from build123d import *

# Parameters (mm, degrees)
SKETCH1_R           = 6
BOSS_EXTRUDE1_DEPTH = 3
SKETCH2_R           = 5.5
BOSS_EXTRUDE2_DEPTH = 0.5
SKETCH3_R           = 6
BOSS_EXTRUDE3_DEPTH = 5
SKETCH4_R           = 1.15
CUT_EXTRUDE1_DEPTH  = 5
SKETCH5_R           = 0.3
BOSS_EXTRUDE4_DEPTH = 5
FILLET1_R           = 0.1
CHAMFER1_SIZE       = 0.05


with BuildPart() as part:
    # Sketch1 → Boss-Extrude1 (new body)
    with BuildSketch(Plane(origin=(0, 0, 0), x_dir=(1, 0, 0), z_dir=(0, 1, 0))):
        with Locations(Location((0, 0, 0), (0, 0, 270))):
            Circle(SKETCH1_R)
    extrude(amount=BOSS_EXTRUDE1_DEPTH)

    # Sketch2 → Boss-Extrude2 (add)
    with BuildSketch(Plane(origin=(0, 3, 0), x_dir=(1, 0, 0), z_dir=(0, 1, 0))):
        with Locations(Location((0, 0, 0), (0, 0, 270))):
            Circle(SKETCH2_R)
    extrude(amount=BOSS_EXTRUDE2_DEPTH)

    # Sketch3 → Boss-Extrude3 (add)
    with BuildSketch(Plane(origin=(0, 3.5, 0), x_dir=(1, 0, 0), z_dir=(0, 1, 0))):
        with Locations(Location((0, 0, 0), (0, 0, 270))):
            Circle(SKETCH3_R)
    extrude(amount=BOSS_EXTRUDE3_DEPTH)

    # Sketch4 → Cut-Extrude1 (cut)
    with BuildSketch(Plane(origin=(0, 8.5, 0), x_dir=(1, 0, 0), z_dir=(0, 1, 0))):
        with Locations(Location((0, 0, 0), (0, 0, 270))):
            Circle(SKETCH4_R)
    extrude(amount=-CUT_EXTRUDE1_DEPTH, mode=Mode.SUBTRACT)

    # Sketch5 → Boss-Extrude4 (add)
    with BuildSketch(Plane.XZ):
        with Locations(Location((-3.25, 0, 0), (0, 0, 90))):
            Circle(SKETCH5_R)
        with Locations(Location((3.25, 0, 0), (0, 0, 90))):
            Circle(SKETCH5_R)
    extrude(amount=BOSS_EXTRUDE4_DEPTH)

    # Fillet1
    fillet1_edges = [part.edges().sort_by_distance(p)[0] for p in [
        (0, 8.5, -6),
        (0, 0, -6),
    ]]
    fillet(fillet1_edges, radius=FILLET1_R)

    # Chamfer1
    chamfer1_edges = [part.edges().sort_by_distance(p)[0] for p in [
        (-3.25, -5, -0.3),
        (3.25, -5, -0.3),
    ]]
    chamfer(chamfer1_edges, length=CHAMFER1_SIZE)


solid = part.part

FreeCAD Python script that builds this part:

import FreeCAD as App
import Part
import Sketcher
from FreeCAD import Vector
Q = App.Units.Quantity


def edges_at(feature, points):
    """Names of the edges that pass closest to the given points."""
    edges = feature.Shape.Edges
    near = lambda p: min(range(len(edges)), key=lambda i: edges[i].distToShape(Part.Vertex(*p))[0])
    return sorted({f"Edge{near(p) + 1}" for p in points})

doc = App.newDocument("Part")
body = doc.addObject("PartDesign::Body", "Body")

sketch1 = body.newObject("Sketcher::SketchObject", "Sketch")
sketch1.AttachmentSupport = (doc.getObject("XZ_Plane"), [""])
sketch1.MapMode = "FlatFace"
sketch1.addGeometry(Part.Circle(Vector(0, 0, 0), Vector(0, 0, 1), 6), False)
sketch1.addConstraint([
    Sketcher.Constraint("Coincident", 0, 3, -1, 1),
    Sketcher.Constraint("Diameter", 0, Q("12 mm")),
])
pad1 = body.newObject("PartDesign::Pad", "Pad")
pad1.Profile = sketch1
pad1.Length = 3
pad1.Reversed = True

sketch2 = body.newObject("Sketcher::SketchObject", "Sketch001")
sketch2.AttachmentSupport = (doc.getObject("XZ_Plane"), [""])
sketch2.MapMode = "FlatFace"
sketch2.AttachmentOffset = App.Placement(Vector(0, 0, -3), App.Rotation())
sketch2.addGeometry(Part.Circle(Vector(0, 0, 0), Vector(0, 0, 1), 6), False)
sketch2.addConstraint([
    Sketcher.Constraint("Coincident", 0, 3, -1, 1),
    Sketcher.Constraint("Diameter", 0, Q("11 mm")),
])
pad2 = body.newObject("PartDesign::Pad", "Pad001")
pad2.Profile = sketch2
pad2.Length = 0.5
pad2.Reversed = True

sketch3 = body.newObject("Sketcher::SketchObject", "Sketch002")
sketch3.AttachmentSupport = (doc.getObject("XZ_Plane"), [""])
sketch3.MapMode = "FlatFace"
sketch3.AttachmentOffset = App.Placement(Vector(0, 0, -3.5), App.Rotation())
sketch3.addGeometry(Part.Circle(Vector(0, 0, 0), Vector(0, 0, 1), 6), False)
sketch3.addConstraint([
    Sketcher.Constraint("Coincident", 0, 3, -1, 1),
    Sketcher.Constraint("Diameter", 0, Q("12 mm")),
])
pad3 = body.newObject("PartDesign::Pad", "Pad002")
pad3.Profile = sketch3
pad3.Length = 5
pad3.Reversed = True

sketch4 = body.newObject("Sketcher::SketchObject", "Sketch003")
sketch4.AttachmentSupport = (doc.getObject("XZ_Plane"), [""])
sketch4.MapMode = "FlatFace"
sketch4.AttachmentOffset = App.Placement(Vector(0, 0, -8.5), App.Rotation())
sketch4.addGeometry(Part.Circle(Vector(0, 0, 0), Vector(0, 0, 1), 1.1), False)
sketch4.addConstraint([
    Sketcher.Constraint("Coincident", 0, 3, -1, 1),
    Sketcher.Constraint("Diameter", 0, Q("2.3 mm")),
])
pocket1 = body.newObject("PartDesign::Pocket", "Pocket")
pocket1.Profile = sketch4
pocket1.Length = 5
pocket1.Reversed = True

sketch5 = body.newObject("Sketcher::SketchObject", "Sketch004")
sketch5.AttachmentSupport = (doc.getObject("XZ_Plane"), [""])
sketch5.MapMode = "FlatFace"
sketch5.addGeometry([
    Part.Circle(Vector(-3.25, 0, 0), Vector(0, 0, 1), 0.3),
    Part.Circle(Vector(3.25, 0, 0), Vector(0, 0, 1), 0.3),
], False)
sketch5.addConstraint([
    Sketcher.Constraint("Equal", 0, 1),
    Sketcher.Constraint("Symmetric", 0, 3, 1, 3, -1, 1),
    Sketcher.Constraint("PointOnObject", 0, 3, -1),
    Sketcher.Constraint("Diameter", 0, Q("0.6 mm")),
    Sketcher.Constraint("DistanceX", 0, 3, 1, 3, Q("6.5 mm")),
])
pad4 = body.newObject("PartDesign::Pad", "Pad003")
pad4.Profile = sketch5
pad4.Length = 5
doc.recompute()

fillet = body.newObject("PartDesign::Fillet", "Fillet")
fillet.Base = (pad4, edges_at(pad4, [(0, 8.5, -6), (0, 0, -6)]))
fillet.Radius = 0.1
doc.recompute()

chamfer = body.newObject("PartDesign::Chamfer", "Chamfer")
chamfer.Base = (fillet, edges_at(fillet, [(-3.25, -5, -0.3), (3.25, -5, -0.3)]))
chamfer.Size = 0.05

doc.recompute()
